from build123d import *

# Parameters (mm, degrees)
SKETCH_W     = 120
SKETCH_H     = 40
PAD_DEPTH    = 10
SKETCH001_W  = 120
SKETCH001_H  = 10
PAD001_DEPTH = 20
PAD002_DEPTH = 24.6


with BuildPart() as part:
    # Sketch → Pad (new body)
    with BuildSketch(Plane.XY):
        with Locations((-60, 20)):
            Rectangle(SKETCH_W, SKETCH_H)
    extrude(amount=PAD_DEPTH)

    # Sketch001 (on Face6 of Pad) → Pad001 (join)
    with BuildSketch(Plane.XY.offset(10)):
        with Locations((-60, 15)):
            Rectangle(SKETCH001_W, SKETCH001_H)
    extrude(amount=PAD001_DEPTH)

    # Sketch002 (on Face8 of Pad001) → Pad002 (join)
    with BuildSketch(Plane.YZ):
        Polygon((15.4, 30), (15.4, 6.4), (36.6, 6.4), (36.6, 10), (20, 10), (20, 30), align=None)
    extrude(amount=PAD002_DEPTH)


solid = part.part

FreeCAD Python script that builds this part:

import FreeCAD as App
import Part
import Sketcher

V = App.Vector
Q = App.Units.Quantity

doc = App.newDocument("Part")
params = doc.addObject("Spreadsheet::Sheet", "Params")
for row, (alias, value) in enumerate([
    ("sketch1_width", "120 mm"),
    ("sketch1_height", "40 mm"),
    ("pad1_length", "10 mm"),
    ("sketch2_width", "120 mm"),
    ("sketch2_height", "10 mm"),
    ("pad2_length", "20 mm"),
    ("sketch3_height", "20 mm"),
    ("sketch3_width", "21.2 mm"),
    ("sketch3_width2", "16.6 mm"),
    ("sketch3_height2", "23.6 mm"),
    ("pad3_length", "24.6 mm"),
], start=1):
    params.set(f"A{row}", alias)
    params.set(f"B{row}", "=" + value)
    params.setAlias(f"B{row}", alias)

body = doc.addObject("PartDesign::Body", "Body")

# Sketch on XY plane
sketch1 = body.newObject("Sketcher::SketchObject", "Sketch")
sketch1.AttachmentSupport = (doc.getObject("XY_Plane"), [""])
sketch1.MapMode = "FlatFace"
sketch1.addGeometry([
    Part.LineSegment(V(-120, 40, 0), V(-120, 0, 0)),
    Part.LineSegment(V(-120, 0, 0), V(0, 0, 0)),
    Part.LineSegment(V(0, 0, 0), V(0, 40, 0)),
    Part.LineSegment(V(0, 40, 0), V(-120, 40, 0)),
], False)
sketch1.addConstraint([
    Sketcher.Constraint("Coincident", 0, 2, 1, 1),
    Sketcher.Constraint("Coincident", 1, 2, 2, 1),
    Sketcher.Constraint("Coincident", 2, 2, 3, 1),
    Sketcher.Constraint("Coincident", 3, 2, 0, 1),
    Sketcher.Constraint("Vertical", 0),
    Sketcher.Constraint("Horizontal", 1),
    Sketcher.Constraint("Vertical", 2),
    Sketcher.Constraint("Horizontal", 3),
    Sketcher.Constraint("Coincident", 1, 2, -1, 1),
    Sketcher.Constraint("DistanceX", 1, 1, 1, 2, Q("120 mm")),
    Sketcher.Constraint("DistanceY", 0, 2, 0, 1, Q("40 mm")),
])
sketch1.setExpression("Constraints[9]", "Params.sketch1_width")
sketch1.setExpression("Constraints[10]", "Params.sketch1_height")
pad1 = body.newObject("PartDesign::Pad", "Pad")
pad1.Profile = sketch1
pad1.setExpression("Length", "Params.pad1_length")

# Sketch on XY plane
sketch2 = body.newObject("Sketcher::SketchObject", "Sketch001")
sketch2.AttachmentSupport = (doc.getObject("XY_Plane"), [""])
sketch2.MapMode = "FlatFace"
sketch2.AttachmentOffset = App.Placement(V(0, 0, 10), App.Rotation())
sketch2.addGeometry([
    Part.LineSegment(V(-120, 20, 0), V(-120, 10, 0)),
    Part.LineSegment(V(-120, 10, 0), V(0, 10, 0)),
    Part.LineSegment(V(0, 10, 0), V(0, 20, 0)),
    Part.LineSegment(V(0, 20, 0), V(-120, 20, 0)),
], False)
sketch2.addConstraint([
    Sketcher.Constraint("Coincident", 0, 2, 1, 1),
    Sketcher.Constraint("Coincident", 1, 2, 2, 1),
    Sketcher.Constraint("Coincident", 2, 2, 3, 1),
    Sketcher.Constraint("Coincident", 3, 2, 0, 1),
    Sketcher.Constraint("Vertical", 0),
    Sketcher.Constraint("Horizontal", 1),
    Sketcher.Constraint("Vertical", 2),
    Sketcher.Constraint("Horizontal", 3),
    Sketcher.Constraint("PointOnObject", 1, 2, -2),
    Sketcher.Constraint("DistanceX", 1, 1, 1, 2, Q("120 mm")),
    Sketcher.Constraint("DistanceY", 0, 2, 0, 1, Q("10 mm")),
    Sketcher.Constraint("DistanceY", -1, 1, 0, 2, Q("10 mm")),
])
sketch2.setExpression("Constraints[9]", "Params.sketch2_width")
sketch2.setExpression("Constraints[10]", "Params.sketch2_height")
pad2 = body.newObject("PartDesign::Pad", "Pad001")
pad2.Profile = sketch2
pad2.setExpression("Length", "Params.pad2_length")

# Sketch on YZ plane
sketch3 = body.newObject("Sketcher::SketchObject", "Sketch002")
sketch3.AttachmentSupport = (doc.getObject("YZ_Plane"), [""])
sketch3.MapMode = "FlatFace"
sketch3.addGeometry([
    Part.LineSegment(V(15.4, 30, 0), V(15.4, 6.4, 0)),  # 0
    Part.LineSegment(V(15.4, 6.4, 0), V(36.6, 6.4, 0)),  # 1
    Part.LineSegment(V(36.6, 6.4, 0), V(36.6, 10, 0)),  # 2
    Part.LineSegment(V(36.6, 10, 0), V(20, 10, 0)),  # 3
    Part.LineSegment(V(20, 10, 0), V(20, 30, 0)),  # 4
    Part.LineSegment(V(20, 30, 0), V(15.4, 30, 0)),  # 5
], False)
sketch3.addConstraint([
    Sketcher.Constraint("Coincident", 0, 2, 1, 1),
    Sketcher.Constraint("Coincident", 1, 2, 2, 1),
    Sketcher.Constraint("Coincident", 2, 2, 3, 1),
    Sketcher.Constraint("Coincident", 3, 2, 4, 1),
    Sketcher.Constraint("Coincident", 4, 2, 5, 1),
    Sketcher.Constraint("Coincident", 5, 2, 0, 1),
    Sketcher.Constraint("Vertical", 0),
    Sketcher.Constraint("Horizontal", 1),
    Sketcher.Constraint("Vertical", 2),
    Sketcher.Constraint("Horizontal", 3),
    Sketcher.Constraint("Vertical", 4),
    Sketcher.Constraint("Horizontal", 5),
    Sketcher.Constraint("DistanceY", 4, 1, 4, 2, Q("20 mm")),
    Sketcher.Constraint("DistanceX", 1, 1, 1, 2, Q("21.2 mm")),
    Sketcher.Constraint("DistanceX", 3, 2, 3, 1, Q("16.6 mm")),
    Sketcher.Constraint("DistanceY", 0, 2, 0, 1, Q("23.6 mm")),
    Sketcher.Constraint("DistanceY", -1, 1, 2, 2, Q("10 mm")),
    Sketcher.Constraint("DistanceX", -1, 1, 3, 2, Q("20 mm")),
])
sketch3.setExpression("Constraints[12]", "Params.sketch3_height")
sketch3.setExpression("Constraints[13]", "Params.sketch3_width")
sketch3.setExpression("Constraints[14]", "Params.sketch3_width2")
sketch3.setExpression("Constraints[15]", "Params.sketch3_height2")
pad3 = body.newObject("PartDesign::Pad", "Pad002")
pad3.Profile = sketch3
pad3.setExpression("Length", "Params.pad3_length")

doc.recompute()
